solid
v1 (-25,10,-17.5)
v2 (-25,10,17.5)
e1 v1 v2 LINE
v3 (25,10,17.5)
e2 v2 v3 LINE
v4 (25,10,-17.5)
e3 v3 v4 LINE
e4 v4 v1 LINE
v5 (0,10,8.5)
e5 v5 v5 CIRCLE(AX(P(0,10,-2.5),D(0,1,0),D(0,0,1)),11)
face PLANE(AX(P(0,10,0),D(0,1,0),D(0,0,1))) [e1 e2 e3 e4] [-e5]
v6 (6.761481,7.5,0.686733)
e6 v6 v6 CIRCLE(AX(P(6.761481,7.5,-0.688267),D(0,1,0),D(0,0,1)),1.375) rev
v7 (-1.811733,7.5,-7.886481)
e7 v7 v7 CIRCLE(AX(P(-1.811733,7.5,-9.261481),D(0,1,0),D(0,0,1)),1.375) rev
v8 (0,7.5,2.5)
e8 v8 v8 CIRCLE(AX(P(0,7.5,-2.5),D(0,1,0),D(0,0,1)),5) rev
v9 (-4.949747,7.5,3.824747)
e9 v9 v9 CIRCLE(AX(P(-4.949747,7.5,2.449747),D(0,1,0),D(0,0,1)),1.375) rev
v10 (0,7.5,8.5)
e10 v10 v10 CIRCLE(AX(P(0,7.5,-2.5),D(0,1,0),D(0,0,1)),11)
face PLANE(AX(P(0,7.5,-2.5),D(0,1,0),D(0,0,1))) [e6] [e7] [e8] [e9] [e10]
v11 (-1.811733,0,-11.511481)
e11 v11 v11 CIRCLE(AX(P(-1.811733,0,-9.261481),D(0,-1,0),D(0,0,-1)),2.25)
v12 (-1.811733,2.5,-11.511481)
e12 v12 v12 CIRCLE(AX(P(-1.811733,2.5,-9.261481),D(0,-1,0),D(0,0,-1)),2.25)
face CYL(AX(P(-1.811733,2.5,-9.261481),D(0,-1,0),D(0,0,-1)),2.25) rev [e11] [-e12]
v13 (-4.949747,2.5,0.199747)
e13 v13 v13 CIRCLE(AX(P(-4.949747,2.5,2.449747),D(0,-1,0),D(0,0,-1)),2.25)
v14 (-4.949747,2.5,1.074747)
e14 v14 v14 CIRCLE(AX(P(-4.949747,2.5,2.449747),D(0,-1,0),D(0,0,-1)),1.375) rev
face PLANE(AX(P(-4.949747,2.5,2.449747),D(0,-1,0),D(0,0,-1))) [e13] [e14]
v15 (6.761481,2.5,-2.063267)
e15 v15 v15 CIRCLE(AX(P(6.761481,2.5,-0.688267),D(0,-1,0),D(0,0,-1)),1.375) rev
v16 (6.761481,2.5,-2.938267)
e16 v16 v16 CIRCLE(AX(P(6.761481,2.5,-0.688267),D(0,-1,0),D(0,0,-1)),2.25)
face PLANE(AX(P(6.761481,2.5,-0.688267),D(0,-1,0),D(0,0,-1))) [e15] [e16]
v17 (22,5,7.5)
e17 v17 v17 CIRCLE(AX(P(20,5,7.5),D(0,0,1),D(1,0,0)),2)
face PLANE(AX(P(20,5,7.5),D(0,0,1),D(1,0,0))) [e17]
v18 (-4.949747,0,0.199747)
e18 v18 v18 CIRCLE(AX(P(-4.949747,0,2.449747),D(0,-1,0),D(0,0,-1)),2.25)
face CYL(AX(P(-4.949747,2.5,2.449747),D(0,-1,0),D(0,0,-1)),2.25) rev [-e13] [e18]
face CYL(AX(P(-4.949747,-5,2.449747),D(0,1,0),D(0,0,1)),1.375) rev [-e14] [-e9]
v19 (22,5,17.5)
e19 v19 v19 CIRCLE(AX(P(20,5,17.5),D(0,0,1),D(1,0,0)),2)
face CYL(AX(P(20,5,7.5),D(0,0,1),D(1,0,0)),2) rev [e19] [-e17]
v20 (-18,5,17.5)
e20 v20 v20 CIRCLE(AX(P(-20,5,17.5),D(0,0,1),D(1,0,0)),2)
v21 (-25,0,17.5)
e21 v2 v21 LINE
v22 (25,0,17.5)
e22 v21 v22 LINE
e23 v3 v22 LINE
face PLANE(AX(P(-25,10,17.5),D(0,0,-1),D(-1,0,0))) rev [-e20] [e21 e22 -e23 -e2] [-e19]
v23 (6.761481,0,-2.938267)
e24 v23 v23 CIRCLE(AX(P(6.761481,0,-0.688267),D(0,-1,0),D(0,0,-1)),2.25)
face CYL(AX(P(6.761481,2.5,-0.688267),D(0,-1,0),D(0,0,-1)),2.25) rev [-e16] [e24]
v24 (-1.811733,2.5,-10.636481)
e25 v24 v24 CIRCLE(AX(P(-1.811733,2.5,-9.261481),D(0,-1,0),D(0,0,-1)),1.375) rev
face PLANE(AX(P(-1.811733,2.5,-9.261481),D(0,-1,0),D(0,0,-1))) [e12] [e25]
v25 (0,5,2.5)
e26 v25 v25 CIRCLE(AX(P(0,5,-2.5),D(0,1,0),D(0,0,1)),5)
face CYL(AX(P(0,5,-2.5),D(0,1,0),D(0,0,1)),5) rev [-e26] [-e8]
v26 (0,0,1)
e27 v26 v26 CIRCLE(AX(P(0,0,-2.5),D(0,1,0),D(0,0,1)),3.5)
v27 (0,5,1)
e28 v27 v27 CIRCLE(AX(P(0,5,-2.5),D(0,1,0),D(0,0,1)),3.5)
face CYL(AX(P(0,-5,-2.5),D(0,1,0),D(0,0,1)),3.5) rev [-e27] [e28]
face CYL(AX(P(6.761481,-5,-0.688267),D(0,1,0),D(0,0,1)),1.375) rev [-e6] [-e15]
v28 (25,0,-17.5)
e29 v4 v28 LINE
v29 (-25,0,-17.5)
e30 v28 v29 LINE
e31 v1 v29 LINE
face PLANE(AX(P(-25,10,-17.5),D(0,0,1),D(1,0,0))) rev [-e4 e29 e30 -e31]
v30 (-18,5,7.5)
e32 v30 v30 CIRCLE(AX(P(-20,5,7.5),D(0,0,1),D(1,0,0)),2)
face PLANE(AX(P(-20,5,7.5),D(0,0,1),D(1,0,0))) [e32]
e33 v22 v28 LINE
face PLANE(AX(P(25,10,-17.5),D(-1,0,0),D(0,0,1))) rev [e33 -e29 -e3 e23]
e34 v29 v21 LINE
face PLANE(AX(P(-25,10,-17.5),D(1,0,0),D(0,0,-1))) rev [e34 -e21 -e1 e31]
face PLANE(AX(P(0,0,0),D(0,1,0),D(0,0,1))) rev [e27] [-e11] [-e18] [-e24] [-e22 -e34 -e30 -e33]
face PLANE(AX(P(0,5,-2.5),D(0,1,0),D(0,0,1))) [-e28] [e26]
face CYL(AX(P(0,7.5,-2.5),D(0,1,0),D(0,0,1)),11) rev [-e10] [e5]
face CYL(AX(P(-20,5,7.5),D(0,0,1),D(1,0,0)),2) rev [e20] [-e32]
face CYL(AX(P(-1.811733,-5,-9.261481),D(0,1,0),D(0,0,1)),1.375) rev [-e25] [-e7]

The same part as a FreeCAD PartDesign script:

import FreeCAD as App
import Part
import Sketcher


def add_polygon(sketch, points):
    """Adds a closed chain of lines whose ends are joined by coincident constraints."""
    first, n = sketch.GeometryCount, len(points)
    for a, b in zip(points, points[1:] + points[:1]):
        sketch.addGeometry(Part.LineSegment(App.Vector(*a, 0), App.Vector(*b, 0)), False)
    for i in range(n):
        sketch.addConstraint(Sketcher.Constraint("Coincident", first + i, 2, first + (i + 1) % n, 1))

doc = App.newDocument("Part")
body = doc.addObject("PartDesign::Body", "Body")

# Sketch on XZ plane
sketch1 = body.newObject("Sketcher::SketchObject", "Sketch")
sketch1.AttachmentSupport = (doc.getObject("XZ_Plane"), [""])
sketch1.MapMode = "FlatFace"
add_polygon(sketch1, [(-25, -17.5), (-25, 17.5), (25, 17.5), (25, -17.5)])  # lines 0-3
sketch1.addConstraint([
    Sketcher.Constraint("Vertical", 0),
    Sketcher.Constraint("Horizontal", 1),
    Sketcher.Constraint("Vertical", 2),
    Sketcher.Constraint("Horizontal", 3),
    Sketcher.Constraint("Symmetric", 0, 2, 2, 2, -1, 1),
    Sketcher.Constraint("DistanceX", 1, 1, 1, 2, 50.0),
    Sketcher.Constraint("DistanceY", 0, 1, 0, 2, 35.0),
])
pad1 = body.newObject("PartDesign::Pad", "Pad")
pad1.Profile = sketch1
pad1.Length = 10
pad1.Reversed = True

# Sketch on XZ plane
sketch2 = body.newObject("Sketcher::SketchObject", "Sketch001")
sketch2.AttachmentSupport = (doc.getObject("XZ_Plane"), [""])
sketch2.MapMode = "FlatFace"
sketch2.AttachmentOffset = App.Placement(App.Vector(0, 0, -10), App.Rotation())
sketch2.addGeometry(Part.Circle(App.Vector(0, -2.5, 0), App.Vector(0, 0, 1), 5), False)
sketch2.addConstraint([
    Sketcher.Constraint("PointOnObject", 0, 3, -2),
    Sketcher.Constraint("Diameter", 0, 10.0),
    Sketcher.Constraint("DistanceY", 0, 3, -1, 1, 2.5),
])
pocket1 = body.newObject("PartDesign::Pocket", "Pocket")
pocket1.Profile = sketch2
pocket1.Length = 5
pocket1.Reversed = True

# Sketch on XZ plane
sketch3 = body.newObject("Sketcher::SketchObject", "Sketch002")
sketch3.AttachmentSupport = (doc.getObject("XZ_Plane"), [""])
sketch3.MapMode = "FlatFace"
sketch3.AttachmentOffset = App.Placement(App.Vector(0, 0, -10), App.Rotation())
sketch3.addGeometry([
    Part.Circle(App.Vector(-1.811733, -9.261481, 0), App.Vector(0, 0, 1), 1.375),
    Part.Circle(App.Vector(6.761481, -0.688267, 0), App.Vector(0, 0, 1), 1.375),
    Part.Circle(App.Vector(-4.949747, 2.449747, 0), App.Vector(0, 0, 1), 1.375),
    Part.Circle(App.Vector(0, -2.5, 0), App.Vector(0, 0, 1), 3.5),
], False)
sketch3.addConstraint([
    Sketcher.Constraint("Equal", 0, 1),
    Sketcher.Constraint("Equal", 1, 2),
    Sketcher.Constraint("PointOnObject", 3, 3, -2),
    Sketcher.Constraint("Diameter", 3, 7.0),
    Sketcher.Constraint("Diameter", 0, 2.75),
    Sketcher.Constraint("DistanceY", 3, 3, -1, 1, 2.5),
    Sketcher.Constraint("DistanceY", 0, 3, -1, 1, 9.261481),
    Sketcher.Constraint("DistanceX", -1, 1, 1, 3, 6.761481),
    Sketcher.Constraint("DistanceY", 0, 3, 2, 3, 11.711228),
    Sketcher.Constraint("DistanceX", 2, 3, 1, 3, 11.711228),
    Sketcher.Constraint("DistanceX", 0, 3, -1, 1, 1.811733),
    Sketcher.Constraint("DistanceY", 1, 3, -1, 1, 0.688267),
])
pocket2 = body.newObject("PartDesign::Pocket", "Pocket001")
pocket2.Profile = sketch3
pocket2.Length = 15
pocket2.Reversed = True

# Sketch on XZ plane
sketch4 = body.newObject("Sketcher::SketchObject", "Sketch003")
sketch4.AttachmentSupport = (doc.getObject("XZ_Plane"), [""])
sketch4.MapMode = "FlatFace"
sketch4.AttachmentOffset = App.Placement(App.Vector(0, 0, -10), App.Rotation())
sketch4.addGeometry(Part.Circle(App.Vector(0, -2.5, 0), App.Vector(0, 0, 1), 11), False)
sketch4.addConstraint([
    Sketcher.Constraint("PointOnObject", 0, 3, -2),
    Sketcher.Constraint("Diameter", 0, 22.0),
    Sketcher.Constraint("DistanceY", 0, 3, -1, 1, 2.5),
])
pocket3 = body.newObject("PartDesign::Pocket", "Pocket002")
pocket3.Profile = sketch4
pocket3.Length = 2.5
pocket3.Reversed = True

# Sketch on XZ plane
sketch5 = body.newObject("Sketcher::SketchObject", "Sketch004")
sketch5.AttachmentSupport = (doc.getObject("XZ_Plane"), [""])
sketch5.MapMode = "FlatFace"
sketch5.addGeometry([
    Part.Circle(App.Vector(-4.949747, 2.449747, 0), App.Vector(0, 0, 1), 2.25),
    Part.Circle(App.Vector(6.761481, -0.688267, 0), App.Vector(0, 0, 1), 2.25),
    Part.Circle(App.Vector(-1.811733, -9.261481, 0), App.Vector(0, 0, 1), 2.25),
], False)
sketch5.addConstraint([
    Sketcher.Constraint("Equal", 0, 1),
    Sketcher.Constraint("Equal", 1, 2),
    Sketcher.Constraint("Diameter", 0, 4.5),
    Sketcher.Constraint("DistanceX", -1, 1, 1, 3, 6.761481),
    Sketcher.Constraint("DistanceY", 2, 3, -1, 1, 9.261481),
    Sketcher.Constraint("DistanceX", 0, 3, 1, 3, 11.711228),
    Sketcher.Constraint("DistanceY", 2, 3, 0, 3, 11.711228),
    Sketcher.Constraint("DistanceY", 1, 3, -1, 1, 0.688267),
    Sketcher.Constraint("DistanceX", 2, 3, -1, 1, 1.811733),
])
pocket4 = body.newObject("PartDesign::Pocket", "Pocket003")
pocket4.Profile = sketch5
pocket4.Length = 2.5

# Sketch on XY plane
sketch6 = body.newObject("Sketcher::SketchObject", "Sketch005")
sketch6.AttachmentSupport = (doc.getObject("XY_Plane"), [""])
sketch6.MapMode = "FlatFace"
sketch6.AttachmentOffset = App.Placement(App.Vector(0, 0, 17.5), App.Rotation())
sketch6.addGeometry([
    Part.Circle(App.Vector(-20, 5, 0), App.Vector(0, 0, 1), 2),
    Part.Circle(App.Vector(20, 5, 0), App.Vector(0, 0, 1), 2),
], False)
sketch6.addConstraint([
    Sketcher.Constraint("Equal", 0, 1),
    Sketcher.Constraint("Symmetric", 0, 3, 1, 3, -2),
    Sketcher.Constraint("Diameter", 0, 4.0),
    Sketcher.Constraint("DistanceX", 0, 3, -1, 1, 20.0),
    Sketcher.Constraint("DistanceY", -1, 1, 0, 3, 5.0),
])
pocket5 = body.newObject("PartDesign::Pocket", "Pocket004")
pocket5.Profile = sketch6
pocket5.Length = 10

doc.recompute()
